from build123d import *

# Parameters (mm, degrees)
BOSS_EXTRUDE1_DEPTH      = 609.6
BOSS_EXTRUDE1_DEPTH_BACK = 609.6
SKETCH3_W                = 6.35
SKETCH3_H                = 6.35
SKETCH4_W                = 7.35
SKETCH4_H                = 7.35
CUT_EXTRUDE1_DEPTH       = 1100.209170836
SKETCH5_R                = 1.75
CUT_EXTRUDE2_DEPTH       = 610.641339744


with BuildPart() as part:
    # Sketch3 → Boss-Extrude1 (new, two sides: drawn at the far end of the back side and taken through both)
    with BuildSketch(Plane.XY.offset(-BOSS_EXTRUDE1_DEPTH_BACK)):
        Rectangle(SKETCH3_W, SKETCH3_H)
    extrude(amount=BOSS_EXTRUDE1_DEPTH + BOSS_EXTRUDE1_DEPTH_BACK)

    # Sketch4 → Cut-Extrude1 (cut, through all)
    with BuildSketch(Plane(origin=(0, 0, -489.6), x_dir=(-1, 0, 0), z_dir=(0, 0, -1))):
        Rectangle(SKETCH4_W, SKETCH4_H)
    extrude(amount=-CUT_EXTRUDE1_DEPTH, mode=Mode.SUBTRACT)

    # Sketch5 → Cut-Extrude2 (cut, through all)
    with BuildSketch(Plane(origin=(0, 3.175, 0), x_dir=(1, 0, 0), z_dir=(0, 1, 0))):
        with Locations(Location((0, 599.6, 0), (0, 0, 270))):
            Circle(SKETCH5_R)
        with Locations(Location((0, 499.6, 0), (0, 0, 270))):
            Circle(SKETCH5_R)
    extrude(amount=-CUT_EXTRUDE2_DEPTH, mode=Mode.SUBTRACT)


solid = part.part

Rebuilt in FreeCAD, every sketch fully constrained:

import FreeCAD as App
import Part
import Sketcher
from FreeCAD import Vector
Q = App.Units.Quantity


def add_polygon(sketch, points):
    """Adds a closed chain of lines whose ends are joined by coincident constraints."""
    first, n = sketch.GeometryCount, len(points)
    for a, b in zip(points, points[1:] + points[:1]):
        sketch.addGeometry(Part.LineSegment(App.Vector(*a, 0), App.Vector(*b, 0)), False)
    for i in range(n):
        sketch.addConstraint(Sketcher.Constraint("Coincident", first + i, 2, first + (i + 1) % n, 1))

doc = App.newDocument("Part")
body = doc.addObject("PartDesign::Body", "Body")

# Sketch on XY plane
sketch1 = doc.addObject("Sketcher::SketchObject", "Sketch")
body.addObject(sketch1)
sketch1.AttachmentSupport = (doc.XY_Plane, [""])
sketch1.MapMode = "FlatFace"
add_polygon(sketch1, [(-3, 3), (-3, -3), (3, -3), (3, 3)])  # lines 0-3
sketch1.addConstraint([
    Sketcher.Constraint("Vertical", 0),
    Sketcher.Constraint("Horizontal", 1),
    Sketcher.Constraint("Vertical", 2),
    Sketcher.Constraint("Horizontal", 3),
    Sketcher.Constraint("Symmetric", 0, 2, 2, 2, -1, 1),
    Sketcher.Constraint("Equal", 3, 0),
    Sketcher.Constraint("DistanceX", 1, 1, 1, 2, Q("0.25 in")),
])
pad1 = doc.addObject("PartDesign::Pad", "Pad")
body.addObject(pad1)
pad1.Profile = sketch1
pad1.Type = "TwoLengths"
pad1.Length = Q("24 in")
pad1.Length2 = Q("24 in")

# Sketch on XY plane
sketch2 = doc.addObject("Sketcher::SketchObject", "Sketch001")
body.addObject(sketch2)
sketch2.AttachmentSupport = (doc.XY_Plane, [""])
sketch2.MapMode = "FlatFace"
sketch2.AttachmentOffset = App.Placement(Vector(0, 0, -489.6), App.Rotation())
add_polygon(sketch2, [(4, 4), (4, -4), (-4, -4), (-4, 4)])  # lines 0-3
sketch2.addConstraint([
    Sketcher.Constraint("Vertical", 0),
    Sketcher.Constraint("Horizontal", 1),
    Sketcher.Constraint("Vertical", 2),
    Sketcher.Constraint("Horizontal", 3),
    Sketcher.Constraint("Symmetric", 0, 2, 2, 2, -1, 1),
    Sketcher.Constraint("Equal", 3, 0),
    Sketcher.Constraint("DistanceX", 1, 2, 1, 1, Q("7.35 mm")),
])
pocket1 = doc.addObject("PartDesign::Pocket", "Pocket")
body.addObject(pocket1)
pocket1.Profile = sketch2
pocket1.Type = "ThroughAll"
pocket1.Reversed = True

# Sketch on XZ plane
sketch3 = doc.addObject("Sketcher::SketchObject", "Sketch002")
body.addObject(sketch3)
sketch3.AttachmentSupport = (doc.XZ_Plane, [""])
sketch3.MapMode = "FlatFace"
sketch3.AttachmentOffset = App.Placement(Vector(0, 0, -0.125 * 25.4), App.Rotation())
sketch3.addGeometry([
    Part.Circle(Vector(0, -599.6, 0), Vector(0, 0, 1), 1.8),
    Part.Circle(Vector(0, -499.6, 0), Vector(0, 0, 1), 1.8),
], False)
sketch3.addConstraint([
    Sketcher.Constraint("Equal", 0, 1),
    Sketcher.Constraint("PointOnObject", 0, 3, -2),
    Sketcher.Constraint("PointOnObject", 1, 3, -2),
    Sketcher.Constraint("Diameter", 0, Q("3.5 mm")),
    Sketcher.Constraint("DistanceY", 0, 3, -1, 1, Q("599.6 mm")),
    Sketcher.Constraint("DistanceY", 1, 3, -1, 1, Q("499.6 mm")),
])
pocket2 = doc.addObject("PartDesign::Pocket", "Pocket001")
body.addObject(pocket2)
pocket2.Profile = sketch3
pocket2.Type = "ThroughAll"
pocket2.Reversed = True

doc.recompute()
